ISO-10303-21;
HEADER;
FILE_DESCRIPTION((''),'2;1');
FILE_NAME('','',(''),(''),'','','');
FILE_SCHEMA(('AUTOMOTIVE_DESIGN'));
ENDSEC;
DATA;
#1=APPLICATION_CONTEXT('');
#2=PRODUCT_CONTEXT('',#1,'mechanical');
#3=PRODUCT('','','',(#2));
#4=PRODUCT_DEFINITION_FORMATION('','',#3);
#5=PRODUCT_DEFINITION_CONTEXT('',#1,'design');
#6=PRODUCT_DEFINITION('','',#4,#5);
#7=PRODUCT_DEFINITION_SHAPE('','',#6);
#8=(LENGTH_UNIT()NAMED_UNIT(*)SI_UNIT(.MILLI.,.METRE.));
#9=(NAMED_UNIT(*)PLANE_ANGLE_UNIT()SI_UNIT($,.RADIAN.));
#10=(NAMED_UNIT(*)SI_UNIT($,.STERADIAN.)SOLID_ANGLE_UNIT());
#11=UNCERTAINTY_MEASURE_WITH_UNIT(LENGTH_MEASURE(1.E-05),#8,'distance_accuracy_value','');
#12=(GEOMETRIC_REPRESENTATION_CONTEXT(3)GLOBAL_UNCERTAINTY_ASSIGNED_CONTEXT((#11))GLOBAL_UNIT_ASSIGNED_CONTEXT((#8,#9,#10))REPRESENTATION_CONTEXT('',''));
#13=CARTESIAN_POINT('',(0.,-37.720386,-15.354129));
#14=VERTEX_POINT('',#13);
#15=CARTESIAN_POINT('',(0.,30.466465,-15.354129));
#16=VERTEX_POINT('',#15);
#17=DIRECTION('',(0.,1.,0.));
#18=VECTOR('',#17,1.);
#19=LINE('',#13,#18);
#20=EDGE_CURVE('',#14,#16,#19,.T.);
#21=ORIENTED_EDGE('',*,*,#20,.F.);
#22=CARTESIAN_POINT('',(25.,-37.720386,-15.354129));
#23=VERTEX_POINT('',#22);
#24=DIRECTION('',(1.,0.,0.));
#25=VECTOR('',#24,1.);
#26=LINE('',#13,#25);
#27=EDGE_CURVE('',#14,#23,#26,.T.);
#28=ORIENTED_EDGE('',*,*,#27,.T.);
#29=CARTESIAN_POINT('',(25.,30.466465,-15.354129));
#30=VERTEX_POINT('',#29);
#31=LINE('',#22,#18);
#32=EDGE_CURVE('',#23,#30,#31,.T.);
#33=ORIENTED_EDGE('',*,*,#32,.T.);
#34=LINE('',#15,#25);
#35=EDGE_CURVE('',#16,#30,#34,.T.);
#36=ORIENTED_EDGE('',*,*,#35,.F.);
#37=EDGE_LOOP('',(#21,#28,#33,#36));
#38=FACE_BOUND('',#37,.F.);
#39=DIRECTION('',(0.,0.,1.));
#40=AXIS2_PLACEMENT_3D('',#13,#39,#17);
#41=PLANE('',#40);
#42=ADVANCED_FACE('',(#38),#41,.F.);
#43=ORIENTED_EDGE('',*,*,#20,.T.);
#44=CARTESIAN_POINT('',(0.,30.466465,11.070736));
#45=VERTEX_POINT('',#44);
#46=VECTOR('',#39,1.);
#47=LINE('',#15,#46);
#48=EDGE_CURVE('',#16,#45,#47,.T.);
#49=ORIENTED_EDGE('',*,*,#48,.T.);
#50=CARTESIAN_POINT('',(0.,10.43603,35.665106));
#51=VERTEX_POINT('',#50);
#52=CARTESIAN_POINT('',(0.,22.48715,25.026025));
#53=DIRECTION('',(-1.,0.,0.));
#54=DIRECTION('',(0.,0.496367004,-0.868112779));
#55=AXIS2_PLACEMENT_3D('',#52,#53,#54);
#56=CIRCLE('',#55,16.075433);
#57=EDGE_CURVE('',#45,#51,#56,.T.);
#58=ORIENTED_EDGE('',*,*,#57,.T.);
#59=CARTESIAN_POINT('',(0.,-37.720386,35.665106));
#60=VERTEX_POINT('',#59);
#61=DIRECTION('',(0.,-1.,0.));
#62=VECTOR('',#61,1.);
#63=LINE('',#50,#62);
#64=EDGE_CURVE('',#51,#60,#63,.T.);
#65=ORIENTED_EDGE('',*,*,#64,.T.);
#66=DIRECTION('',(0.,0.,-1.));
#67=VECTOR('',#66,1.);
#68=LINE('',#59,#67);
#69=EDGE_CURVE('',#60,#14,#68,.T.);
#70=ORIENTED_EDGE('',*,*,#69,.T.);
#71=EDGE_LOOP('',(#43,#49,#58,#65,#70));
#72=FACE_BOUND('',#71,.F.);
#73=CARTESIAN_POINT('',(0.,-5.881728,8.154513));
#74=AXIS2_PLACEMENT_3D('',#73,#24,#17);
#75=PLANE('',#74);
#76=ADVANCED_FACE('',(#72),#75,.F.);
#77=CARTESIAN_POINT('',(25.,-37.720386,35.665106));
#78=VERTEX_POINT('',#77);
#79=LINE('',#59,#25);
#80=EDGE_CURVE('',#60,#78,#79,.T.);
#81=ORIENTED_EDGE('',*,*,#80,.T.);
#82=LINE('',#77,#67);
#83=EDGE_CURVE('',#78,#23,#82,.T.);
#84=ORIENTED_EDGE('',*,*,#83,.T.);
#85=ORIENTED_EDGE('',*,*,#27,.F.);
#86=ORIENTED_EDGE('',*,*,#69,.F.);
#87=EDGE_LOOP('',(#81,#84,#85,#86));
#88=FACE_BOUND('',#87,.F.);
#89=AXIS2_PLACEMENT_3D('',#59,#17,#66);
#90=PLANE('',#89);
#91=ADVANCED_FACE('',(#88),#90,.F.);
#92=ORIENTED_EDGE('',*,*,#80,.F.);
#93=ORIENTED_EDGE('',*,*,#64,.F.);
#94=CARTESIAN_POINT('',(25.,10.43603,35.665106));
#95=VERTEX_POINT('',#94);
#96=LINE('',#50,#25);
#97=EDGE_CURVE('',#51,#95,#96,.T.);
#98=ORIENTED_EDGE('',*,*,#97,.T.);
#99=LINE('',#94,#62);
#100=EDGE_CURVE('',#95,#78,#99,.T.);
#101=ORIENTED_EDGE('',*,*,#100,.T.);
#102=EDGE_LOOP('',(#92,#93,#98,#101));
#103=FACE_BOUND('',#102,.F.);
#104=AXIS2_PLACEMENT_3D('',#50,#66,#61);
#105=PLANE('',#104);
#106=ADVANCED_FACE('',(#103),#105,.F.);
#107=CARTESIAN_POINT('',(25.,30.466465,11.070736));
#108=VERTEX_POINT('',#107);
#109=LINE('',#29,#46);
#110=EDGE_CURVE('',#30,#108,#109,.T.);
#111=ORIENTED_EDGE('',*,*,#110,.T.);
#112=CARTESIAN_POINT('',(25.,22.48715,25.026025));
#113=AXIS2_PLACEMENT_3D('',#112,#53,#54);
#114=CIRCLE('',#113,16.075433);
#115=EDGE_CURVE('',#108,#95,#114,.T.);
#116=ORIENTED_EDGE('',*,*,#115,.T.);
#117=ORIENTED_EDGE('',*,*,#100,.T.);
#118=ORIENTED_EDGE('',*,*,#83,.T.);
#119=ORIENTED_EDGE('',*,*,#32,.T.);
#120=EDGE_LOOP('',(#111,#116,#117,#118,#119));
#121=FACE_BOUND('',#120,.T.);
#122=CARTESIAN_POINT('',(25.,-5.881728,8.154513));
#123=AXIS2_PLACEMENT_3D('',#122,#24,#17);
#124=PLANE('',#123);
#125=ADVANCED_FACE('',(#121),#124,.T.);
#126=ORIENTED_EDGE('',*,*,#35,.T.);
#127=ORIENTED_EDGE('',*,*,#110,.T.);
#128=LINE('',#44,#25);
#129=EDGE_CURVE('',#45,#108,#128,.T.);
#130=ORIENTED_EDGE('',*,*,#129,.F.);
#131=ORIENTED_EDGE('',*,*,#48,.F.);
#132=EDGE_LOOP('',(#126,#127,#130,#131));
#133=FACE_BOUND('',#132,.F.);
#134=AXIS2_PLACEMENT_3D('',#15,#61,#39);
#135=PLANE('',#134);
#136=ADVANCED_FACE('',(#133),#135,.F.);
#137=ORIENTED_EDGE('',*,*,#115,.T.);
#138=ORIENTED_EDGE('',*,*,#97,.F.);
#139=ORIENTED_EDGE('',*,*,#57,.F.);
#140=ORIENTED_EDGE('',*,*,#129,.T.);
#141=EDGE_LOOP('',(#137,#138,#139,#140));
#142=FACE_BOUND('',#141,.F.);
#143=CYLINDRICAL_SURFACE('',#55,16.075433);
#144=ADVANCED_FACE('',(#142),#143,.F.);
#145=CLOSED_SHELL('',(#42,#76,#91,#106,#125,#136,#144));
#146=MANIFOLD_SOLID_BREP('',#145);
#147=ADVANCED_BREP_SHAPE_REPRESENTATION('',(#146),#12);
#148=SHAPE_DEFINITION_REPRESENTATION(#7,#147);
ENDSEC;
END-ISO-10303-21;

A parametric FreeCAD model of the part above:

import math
import FreeCAD as App
import Part
import Sketcher
from FreeCAD import Vector
Q = App.Units.Quantity

doc = App.newDocument("Part")
params = doc.addObject("Spreadsheet::Sheet", "Params")
for row, (alias, value) in enumerate([
    ("pad1_length", "25 mm"),
], start=1):
    params.set(f"A{row}", alias)
    params.set(f"B{row}", "=" + value)
    params.setAlias(f"B{row}", alias)

body = doc.addObject("PartDesign::Body", "Body")

sketch1 = doc.addObject("Sketcher::SketchObject", "Sketch")
body.addObject(sketch1)
sketch1.AttachmentSupport = (doc.YZ_Plane, [""])
sketch1.MapMode = "FlatFace"
sketch1.addGeometry([
    Part.LineSegment(Vector(-38, 36, 0), Vector(-38, -15, 0)),
    Part.LineSegment(Vector(-38, -15, 0), Vector(30, -15, 0)),
    Part.LineSegment(Vector(30, -15, 0), Vector(30, 11, 0)),
    Part.ArcOfCircle(Part.Circle(Vector(22, 25, 0), Vector(0, 0, 1), 16), math.radians(139), math.radians(300)),
    Part.LineSegment(Vector(10, 36, 0), Vector(-38, 36, 0)),
], False)
sketch1.addConstraint([
    Sketcher.Constraint("Coincident", 0, 2, 1, 1),
    Sketcher.Constraint("Coincident", 1, 2, 2, 1),
    Sketcher.Constraint("Coincident", 2, 2, 3, 2),
    Sketcher.Constraint("Coincident", 3, 1, 4, 1),
    Sketcher.Constraint("Coincident", 4, 2, 0, 1),
    Sketcher.Constraint("Vertical", 0),
    Sketcher.Constraint("Horizontal", 1),
    Sketcher.Constraint("Vertical", 2),
    Sketcher.Constraint("Horizontal", 4),
    Sketcher.Constraint("Radius", 3, Q("16.075433 mm")),
    Sketcher.Constraint("DistanceX", 1, 1, 1, 2, Q("68.186851 mm")),
    Sketcher.Constraint("DistanceX", 4, 2, 4, 1, Q("48.156416 mm")),
    Sketcher.Constraint("DistanceY", 0, 2, 0, 1, Q("51.019235 mm")),
    Sketcher.Constraint("DistanceY", 2, 1, 2, 2, Q("26.424865 mm")),
    Sketcher.Constraint("DistanceX", -1, 1, 3, 3, Q("22.48715 mm")),
    Sketcher.Constraint("DistanceY", 0, 2, -1, 1, Q("15.354129 mm")),
])
pad1 = doc.addObject("PartDesign::Pad", "Pad")
body.addObject(pad1)
pad1.Profile = sketch1
pad1.setExpression("Length", "Params.pad1_length")

doc.recompute()
